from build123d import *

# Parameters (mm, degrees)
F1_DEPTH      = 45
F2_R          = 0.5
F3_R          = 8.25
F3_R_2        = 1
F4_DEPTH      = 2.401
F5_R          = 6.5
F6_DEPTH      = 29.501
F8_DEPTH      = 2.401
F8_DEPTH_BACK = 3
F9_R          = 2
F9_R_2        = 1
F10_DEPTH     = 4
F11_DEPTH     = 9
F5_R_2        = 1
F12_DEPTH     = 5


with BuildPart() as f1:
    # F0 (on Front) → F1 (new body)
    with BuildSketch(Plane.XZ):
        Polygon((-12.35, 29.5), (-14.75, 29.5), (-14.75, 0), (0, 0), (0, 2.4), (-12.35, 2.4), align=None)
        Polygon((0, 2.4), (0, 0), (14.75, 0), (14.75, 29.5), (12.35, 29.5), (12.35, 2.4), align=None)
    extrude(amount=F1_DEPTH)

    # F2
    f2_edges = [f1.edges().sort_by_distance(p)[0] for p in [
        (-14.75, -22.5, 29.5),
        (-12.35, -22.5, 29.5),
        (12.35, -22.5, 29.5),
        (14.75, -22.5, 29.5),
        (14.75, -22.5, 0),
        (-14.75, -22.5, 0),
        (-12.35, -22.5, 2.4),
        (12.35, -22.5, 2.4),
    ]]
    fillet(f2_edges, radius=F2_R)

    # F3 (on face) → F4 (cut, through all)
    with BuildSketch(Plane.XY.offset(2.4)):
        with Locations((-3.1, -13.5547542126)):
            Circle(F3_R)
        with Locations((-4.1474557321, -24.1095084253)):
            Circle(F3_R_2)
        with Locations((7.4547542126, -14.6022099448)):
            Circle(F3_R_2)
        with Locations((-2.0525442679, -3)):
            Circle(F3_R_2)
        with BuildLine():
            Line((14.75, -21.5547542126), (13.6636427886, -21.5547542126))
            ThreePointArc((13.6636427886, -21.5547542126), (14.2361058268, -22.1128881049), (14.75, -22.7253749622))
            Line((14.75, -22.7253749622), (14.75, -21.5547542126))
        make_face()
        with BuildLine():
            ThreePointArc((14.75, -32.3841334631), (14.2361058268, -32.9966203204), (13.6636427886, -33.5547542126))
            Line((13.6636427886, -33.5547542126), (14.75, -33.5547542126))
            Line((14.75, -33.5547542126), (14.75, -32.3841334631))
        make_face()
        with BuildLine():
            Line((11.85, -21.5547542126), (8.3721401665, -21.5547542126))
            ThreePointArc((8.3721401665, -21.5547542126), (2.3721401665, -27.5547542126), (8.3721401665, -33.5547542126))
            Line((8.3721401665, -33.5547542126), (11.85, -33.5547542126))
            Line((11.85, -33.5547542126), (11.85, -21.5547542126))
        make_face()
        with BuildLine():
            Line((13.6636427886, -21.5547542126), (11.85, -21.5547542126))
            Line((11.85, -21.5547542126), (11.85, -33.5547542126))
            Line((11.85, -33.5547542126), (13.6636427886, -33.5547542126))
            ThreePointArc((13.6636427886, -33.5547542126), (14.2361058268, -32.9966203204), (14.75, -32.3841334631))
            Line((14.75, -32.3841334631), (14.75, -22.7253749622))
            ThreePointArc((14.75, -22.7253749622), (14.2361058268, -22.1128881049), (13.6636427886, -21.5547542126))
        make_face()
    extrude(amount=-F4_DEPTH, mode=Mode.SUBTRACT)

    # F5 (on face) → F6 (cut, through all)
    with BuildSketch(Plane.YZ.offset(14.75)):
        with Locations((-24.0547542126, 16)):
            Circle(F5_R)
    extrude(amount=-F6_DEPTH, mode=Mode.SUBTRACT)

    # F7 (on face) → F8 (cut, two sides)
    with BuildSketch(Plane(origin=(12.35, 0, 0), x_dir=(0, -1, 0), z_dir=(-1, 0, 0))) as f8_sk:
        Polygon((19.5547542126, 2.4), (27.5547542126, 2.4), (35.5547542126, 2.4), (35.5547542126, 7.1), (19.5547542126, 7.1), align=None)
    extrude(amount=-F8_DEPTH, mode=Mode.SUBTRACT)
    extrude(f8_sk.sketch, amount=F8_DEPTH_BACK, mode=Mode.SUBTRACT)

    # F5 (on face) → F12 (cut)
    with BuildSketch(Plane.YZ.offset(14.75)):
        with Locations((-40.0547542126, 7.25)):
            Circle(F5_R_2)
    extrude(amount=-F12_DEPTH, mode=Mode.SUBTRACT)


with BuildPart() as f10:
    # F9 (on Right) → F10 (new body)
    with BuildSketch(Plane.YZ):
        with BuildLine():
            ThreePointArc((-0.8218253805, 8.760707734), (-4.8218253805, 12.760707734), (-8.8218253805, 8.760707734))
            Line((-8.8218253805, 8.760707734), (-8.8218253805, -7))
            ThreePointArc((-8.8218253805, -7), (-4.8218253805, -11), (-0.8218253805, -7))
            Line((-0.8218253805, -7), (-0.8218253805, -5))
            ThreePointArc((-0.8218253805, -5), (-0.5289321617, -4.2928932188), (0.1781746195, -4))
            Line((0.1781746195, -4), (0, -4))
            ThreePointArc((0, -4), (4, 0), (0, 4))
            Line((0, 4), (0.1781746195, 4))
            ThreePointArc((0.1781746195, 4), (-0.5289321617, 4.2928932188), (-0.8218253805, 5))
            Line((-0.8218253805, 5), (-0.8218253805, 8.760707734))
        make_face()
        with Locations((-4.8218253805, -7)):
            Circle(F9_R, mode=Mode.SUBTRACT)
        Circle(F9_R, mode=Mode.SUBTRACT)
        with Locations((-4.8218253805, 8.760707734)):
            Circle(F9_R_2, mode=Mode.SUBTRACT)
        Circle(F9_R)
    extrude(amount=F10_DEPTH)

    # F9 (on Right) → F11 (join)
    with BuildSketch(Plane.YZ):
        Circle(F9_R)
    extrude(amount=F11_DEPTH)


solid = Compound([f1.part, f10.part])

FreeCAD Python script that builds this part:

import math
import FreeCAD as App
import Part
import Sketcher
from FreeCAD import Vector
Q = App.Units.Quantity


def edges_at(feature, points):
    """Names of the edges that pass closest to the given points."""
    edges = feature.Shape.Edges
    near = lambda p: min(range(len(edges)), key=lambda i: edges[i].distToShape(Part.Vertex(*p))[0])
    return sorted({f"Edge{near(p) + 1}" for p in points})


def add_polygon(sketch, points):
    """Adds a closed chain of lines whose ends are joined by coincident constraints."""
    first, n = sketch.GeometryCount, len(points)
    for a, b in zip(points, points[1:] + points[:1]):
        sketch.addGeometry(Part.LineSegment(App.Vector(*a, 0), App.Vector(*b, 0)), False)
    for i in range(n):
        sketch.addConstraint(Sketcher.Constraint("Coincident", first + i, 2, first + (i + 1) % n, 1))

doc = App.newDocument("Part")
body = doc.addObject("PartDesign::Body", "Body")

# Sketch on XZ plane
sketch1 = doc.addObject("Sketcher::SketchObject", "Sketch")
body.addObject(sketch1)
sketch1.AttachmentSupport = (doc.XZ_Plane, [""])
sketch1.MapMode = "FlatFace"
add_polygon(sketch1, [(-12.3, 29.5), (-14.8, 29.5), (-14.8, 0), (14.8, 0), (14.8, 29.5), (12.3, 29.5), (12.3, 2.4), (-12.3, 2.4)])  # lines 0-7
sketch1.addConstraint(Sketcher.Constraint("Horizontal", 0))
sketch1.addConstraint(Sketcher.Constraint("Vertical", 1))
sketch1.addConstraint(Sketcher.Constraint("Horizontal", 2))
sketch1.addConstraint(Sketcher.Constraint("Vertical", 3))
sketch1.addConstraint(Sketcher.Constraint("Horizontal", 4))
sketch1.addConstraint(Sketcher.Constraint("Vertical", 5))
sketch1.addConstraint(Sketcher.Constraint("Horizontal", 6))
sketch1.addConstraint(Sketcher.Constraint("Vertical", 7))
sketch1.addConstraint(Sketcher.Constraint("Symmetric", 1, 2, 2, 2, -1, 1))
sketch1.addConstraint(Sketcher.Constraint("Symmetric", 4, 2, 7, 2, -2))
sketch1.addConstraint(Sketcher.Constraint("Equal", 2, 1))
sketch1.addConstraint(Sketcher.Constraint("DistanceX", 0, 2, 0, 1, Q("2.4 mm")))
sketch1.addConstraint(Sketcher.Constraint("DistanceX", 2, 1, 2, 2, Q("29.5 mm")))
sketch1.addConstraint(Sketcher.Constraint("DistanceY", 5, 2, 5, 1, Q("27.1 mm")))
pad1 = doc.addObject("PartDesign::Pad", "Pad")
body.addObject(pad1)
pad1.Profile = sketch1
pad1.Length = 45
doc.recompute()

fillet = doc.addObject("PartDesign::Fillet", "Fillet")
body.addObject(fillet)
fillet.Base = (pad1, edges_at(pad1, [
    (-14.75, -22.5, 29.5),
    (-12.35, -22.5, 29.5),
    (12.35, -22.5, 29.5),
    (14.75, -22.5, 29.5),
    (14.75, -22.5, 0),
    (-14.75, -22.5, 0),
    (-12.35, -22.5, 2.4),
    (12.35, -22.5, 2.4),
]))
fillet.Radius = 0.5

# Sketch on XY plane
sketch2 = doc.addObject("Sketcher::SketchObject", "Sketch001")
body.addObject(sketch2)
sketch2.AttachmentSupport = (doc.XY_Plane, [""])
sketch2.MapMode = "FlatFace"
sketch2.AttachmentOffset = App.Placement(Vector(0, 0, 2.4), App.Rotation())
sketch2.addGeometry(Part.Circle(Vector(-3.1, -13.6, 0), Vector(0, 0, 1), 8.2), False)
sketch2.addGeometry(Part.Circle(Vector(-4.1, -24.1, 0), Vector(0, 0, 1), 1), False)
sketch2.addGeometry(Part.Circle(Vector(7.5, -14.6, 0), Vector(0, 0, 1), 1), False)
sketch2.addGeometry(Part.Circle(Vector(-2.1, -3, 0), Vector(0, 0, 1), 1), False)
sketch2.addGeometry(Part.LineSegment(Vector(14.8, -21.6, 0), Vector(8.4, -21.6, 0)), False)
sketch2.addGeometry(Part.ArcOfCircle(Part.Circle(Vector(8.4, -27.6, 0), Vector(0, 0, 1), 6), math.radians(90), math.radians(270)), False)
sketch2.addGeometry(Part.LineSegment(Vector(8.4, -33.6, 0), Vector(14.8, -33.6, 0)), False)
sketch2.addGeometry(Part.LineSegment(Vector(14.8, -33.6, 0), Vector(14.8, -21.6, 0)), False)
sketch2.addConstraint(Sketcher.Constraint("Tangent", 4, 2, 5, 1))
sketch2.addConstraint(Sketcher.Constraint("Tangent", 5, 2, 6, 1))
sketch2.addConstraint(Sketcher.Constraint("Coincident", 6, 2, 7, 1))
sketch2.addConstraint(Sketcher.Constraint("Coincident", 7, 2, 4, 1))
sketch2.addConstraint(Sketcher.Constraint("Horizontal", 4))
sketch2.addConstraint(Sketcher.Constraint("Horizontal", 6))
sketch2.addConstraint(Sketcher.Constraint("Vertical", 7))
sketch2.addConstraint(Sketcher.Constraint("Equal", 1, 2))
sketch2.addConstraint(Sketcher.Constraint("Equal", 2, 3))
sketch2.addConstraint(Sketcher.Constraint("Diameter", 1, Q("2 mm")))
sketch2.addConstraint(Sketcher.Constraint("Radius", 5, Q("6 mm")))
sketch2.addConstraint(Sketcher.Constraint("Diameter", 0, Q("16.5 mm")))
sketch2.addConstraint(Sketcher.Constraint("DistanceY", 3, 3, -1, 1, Q("3 mm")))
sketch2.addConstraint(Sketcher.Constraint("DistanceY", 5, 3, 0, 3, Q("14 mm")))
sketch2.addConstraint(Sketcher.Constraint("DistanceX", 0, 3, -1, 1, Q("3.1 mm")))
sketch2.addConstraint(Sketcher.Constraint("DistanceX", -1, 1, 6, 2, Q("14.75 mm")))
sketch2.addConstraint(Sketcher.Constraint("DistanceX", 4, 2, 4, 1, Q("6.37786 mm")))
sketch2.addConstraint(Sketcher.Constraint("DistanceY", 1, 3, 2, 3, Q("9.507298 mm")))
sketch2.addConstraint(Sketcher.Constraint("DistanceX", 3, 3, 2, 3, Q("9.507298 mm")))
sketch2.addConstraint(Sketcher.Constraint("DistanceY", 1, 3, -1, 1, Q("24.109508 mm")))
sketch2.addConstraint(Sketcher.Constraint("DistanceX", 1, 3, 2, 3, Q("11.60221 mm")))
sketch2.addConstraint(Sketcher.Constraint("DistanceY", 0, 3, -1, 1, Q("13.554754 mm")))
sketch2.addConstraint(Sketcher.Constraint("DistanceX", 1, 3, -1, 1, Q("4.147456 mm")))
pocket1 = doc.addObject("PartDesign::Pocket", "Pocket")
body.addObject(pocket1)
pocket1.Profile = sketch2
pocket1.Type = "ThroughAll"

# Sketch on YZ plane
sketch3 = doc.addObject("Sketcher::SketchObject", "Sketch002")
body.addObject(sketch3)
sketch3.AttachmentSupport = (doc.YZ_Plane, [""])
sketch3.MapMode = "FlatFace"
sketch3.AttachmentOffset = App.Placement(Vector(0, 0, 14.75), App.Rotation())
sketch3.addGeometry(Part.Circle(Vector(-24, 16, 0), Vector(0, 0, 1), 6), False)
sketch3.addConstraint(Sketcher.Constraint("Diameter", 0, Q("13 mm")))
sketch3.addConstraint(Sketcher.Constraint("DistanceY", -1, 1, 0, 3, Q("16 mm")))
sketch3.addConstraint(Sketcher.Constraint("DistanceX", 0, 3, -1, 1, Q("24.054754 mm")))
pocket2 = doc.addObject("PartDesign::Pocket", "Pocket001")
body.addObject(pocket2)
pocket2.Profile = sketch3
pocket2.Type = "ThroughAll"

# Sketch on YZ plane
sketch4 = doc.addObject("Sketcher::SketchObject", "Sketch003")
body.addObject(sketch4)
sketch4.AttachmentSupport = (doc.YZ_Plane, [""])
sketch4.MapMode = "FlatFace"
sketch4.AttachmentOffset = App.Placement(Vector(0, 0, 12.35), App.Rotation())
add_polygon(sketch4, [(-19.6, 2.4), (-35.6, 2.4), (-35.6, 7.1), (-19.6, 7.1)])  # lines 0-3
sketch4.addConstraint(Sketcher.Constraint("Horizontal", 0))
sketch4.addConstraint(Sketcher.Constraint("Vertical", 1))
sketch4.addConstraint(Sketcher.Constraint("Horizontal", 2))
sketch4.addConstraint(Sketcher.Constraint("Vertical", 3))
sketch4.addConstraint(Sketcher.Constraint("DistanceX", 0, 2, 0, 1, Q("16 mm")))
sketch4.addConstraint(Sketcher.Constraint("DistanceY", 1, 1, 1, 2, Q("4.7 mm")))
sketch4.addConstraint(Sketcher.Constraint("DistanceY", -1, 1, 0, 2, Q("2.4 mm")))
sketch4.addConstraint(Sketcher.Constraint("DistanceX", 0, 2, -1, 1, Q("35.554754 mm")))
pocket3 = doc.addObject("PartDesign::Pocket", "Pocket002")
body.addObject(pocket3)
pocket3.Profile = sketch4
pocket3.Type = "TwoLengths"
pocket3.Length = 2.401
pocket3.Length2 = 3
pocket3.Reversed = True

# Sketch on YZ plane
sketch5 = doc.addObject("Sketcher::SketchObject", "Sketch004")
body.addObject(sketch5)
sketch5.AttachmentSupport = (doc.YZ_Plane, [""])
sketch5.MapMode = "FlatFace"
sketch5.AttachmentOffset = App.Placement(Vector(0, 0, 14.75), App.Rotation())
sketch5.addGeometry(Part.Circle(Vector(-40.1, 7.2, 0), Vector(0, 0, 1), 1), False)
sketch5.addConstraint(Sketcher.Constraint("Diameter", 0, Q("2 mm")))
sketch5.addConstraint(Sketcher.Constraint("DistanceY", -1, 1, 0, 3, Q("7.25 mm")))
sketch5.addConstraint(Sketcher.Constraint("DistanceX", 0, 3, -1, 1, Q("40.054754 mm")))
pocket4 = doc.addObject("PartDesign::Pocket", "Pocket003")
body.addObject(pocket4)
pocket4.Profile = sketch5
pocket4.Length = 5
body2 = doc.addObject("PartDesign::Body", "Body001")

# Sketch on YZ plane
sketch6 = doc.addObject("Sketcher::SketchObject", "Sketch005")
body2.addObject(sketch6)
sketch6.AttachmentSupport = (doc.getObject("YZ_Plane001"), [""])
sketch6.MapMode = "FlatFace"
sketch6.addGeometry(Part.ArcOfCircle(Part.Circle(Vector(-4.82, 8.76, 0), Vector(0, 0, 1), 4), math.radians(0), math.radians(180)), False)
sketch6.addGeometry(Part.LineSegment(Vector(-8.82, 8.76, 0), Vector(-8.82, -7, 0)), False)
sketch6.addGeometry(Part.ArcOfCircle(Part.Circle(Vector(-4.82, -7, 0), Vector(0, 0, 1), 4), math.radians(180), math.radians(360)), False)
sketch6.addGeometry(Part.LineSegment(Vector(-0.82, -7, 0), Vector(-0.82, -5, 0)), False)
sketch6.addGeometry(Part.ArcOfCircle(Part.Circle(Vector(0.18, -5, 0), Vector(0, 0, 1), 1), math.radians(90), math.radians(180)), False)
sketch6.addGeometry(Part.LineSegment(Vector(0.18, -4, 0), Vector(0, -4, 0)), False)
sketch6.addGeometry(Part.ArcOfCircle(Part.Circle(Vector(0, 0, 0), Vector(0, 0, 1), 4), math.radians(-90), math.radians(90)), False)
sketch6.addGeometry(Part.LineSegment(Vector(0, 4, 0), Vector(0.18, 4, 0)), False)
sketch6.addGeometry(Part.ArcOfCircle(Part.Circle(Vector(0.18, 5, 0), Vector(0, 0, 1), 1), math.radians(180), math.radians(270)), False)
sketch6.addGeometry(Part.LineSegment(Vector(-0.82, 5, 0), Vector(-0.82, 8.76, 0)), False)
sketch6.addGeometry(Part.Circle(Vector(-4.82, -7, 0), Vector(0, 0, 1), 2), False)
sketch6.addGeometry(Part.Circle(Vector(-4.82, 8.76, 0), Vector(0, 0, 1), 1), False)
sketch6.addConstraint(Sketcher.Constraint("Tangent", 0, 2, 1, 1))
sketch6.addConstraint(Sketcher.Constraint("Tangent", 1, 2, 2, 1))
sketch6.addConstraint(Sketcher.Constraint("Tangent", 2, 2, 3, 1))
sketch6.addConstraint(Sketcher.Constraint("Tangent", 3, 2, 4, 2))
sketch6.addConstraint(Sketcher.Constraint("Tangent", 4, 1, 5, 1))
sketch6.addConstraint(Sketcher.Constraint("Tangent", 5, 2, 6, 1))
sketch6.addConstraint(Sketcher.Constraint("Tangent", 6, 2, 7, 1))
sketch6.addConstraint(Sketcher.Constraint("Tangent", 7, 2, 8, 2))
sketch6.addConstraint(Sketcher.Constraint("Tangent", 8, 1, 9, 1))
sketch6.addConstraint(Sketcher.Constraint("Tangent", 9, 2, 0, 1))
sketch6.addConstraint(Sketcher.Constraint("Vertical", 1))
sketch6.addConstraint(Sketcher.Constraint("Vertical", 3))
sketch6.addConstraint(Sketcher.Constraint("Horizontal", 5))
sketch6.addConstraint(Sketcher.Constraint("Horizontal", 7))
sketch6.addConstraint(Sketcher.Constraint("Vertical", 9))
sketch6.addConstraint(Sketcher.Constraint("Coincident", 6, 3, -1, 1))
sketch6.addConstraint(Sketcher.Constraint("Coincident", 10, 3, 2, 3))
sketch6.addConstraint(Sketcher.Constraint("Coincident", 11, 3, 0, 3))
sketch6.addConstraint(Sketcher.Constraint("Equal", 0, 2))
sketch6.addConstraint(Sketcher.Constraint("Equal", 2, 6))
sketch6.addConstraint(Sketcher.Constraint("Equal", 4, 8))
sketch6.addConstraint(Sketcher.Constraint("Equal", 8, 11))
sketch6.addConstraint(Sketcher.Constraint("Diameter", 10, Q("4 mm")))
sketch6.addConstraint(Sketcher.Constraint("Diameter", 11, Q("2 mm")))
sketch6.addConstraint(Sketcher.Constraint("Radius", 0, Q("4 mm")))
sketch6.addConstraint(Sketcher.Constraint("DistanceY", 3, 1, 3, 2, Q("2 mm")))
sketch6.addConstraint(Sketcher.Constraint("DistanceX", 5, 2, 5, 1, Q("0.178175 mm")))
sketch6.addConstraint(Sketcher.Constraint("DistanceY", 1, 2, 1, 1, Q("15.760708 mm")))
pad2 = doc.addObject("PartDesign::Pad", "Pad001")
body2.addObject(pad2)
pad2.Profile = sketch6
pad2.Length = 4

# Sketch on YZ plane
sketch7 = doc.addObject("Sketcher::SketchObject", "Sketch006")
body2.addObject(sketch7)
sketch7.AttachmentSupport = (doc.getObject("YZ_Plane001"), [""])
sketch7.MapMode = "FlatFace"
sketch7.addGeometry(Part.Circle(Vector(0, 0, 0), Vector(0, 0, 1), 2), False)
sketch7.addConstraint(Sketcher.Constraint("Coincident", 0, 3, -1, 1))
sketch7.addConstraint(Sketcher.Constraint("Diameter", 0, Q("4 mm")))
pad3 = doc.addObject("PartDesign::Pad", "Pad002")
body2.addObject(pad3)
pad3.Profile = sketch7
pad3.Length = 9

doc.recompute()
